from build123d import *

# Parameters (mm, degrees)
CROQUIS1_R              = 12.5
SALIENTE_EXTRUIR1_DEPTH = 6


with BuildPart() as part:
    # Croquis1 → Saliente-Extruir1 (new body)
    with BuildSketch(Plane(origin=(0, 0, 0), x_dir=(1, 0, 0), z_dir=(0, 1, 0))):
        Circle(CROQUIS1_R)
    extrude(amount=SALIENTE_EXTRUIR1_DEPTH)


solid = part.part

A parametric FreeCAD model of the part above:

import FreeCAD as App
import Part
import Sketcher

V = App.Vector
Q = App.Units.Quantity

doc = App.newDocument("Part")
params = doc.addObject("Spreadsheet::Sheet", "Params")
for row, (alias, value) in enumerate([
    ("sketch1_diameter", "25 mm"),
    ("pad1_length", "6 mm"),
], start=1):
    params.set(f"A{row}", alias)
    params.set(f"B{row}", "=" + value)
    params.setAlias(f"B{row}", alias)

body = doc.addObject("PartDesign::Body", "Body")

sketch1 = body.newObject("Sketcher::SketchObject", "Sketch")
sketch1.AttachmentSupport = (doc.getObject("XZ_Plane"), [""])
sketch1.MapMode = "FlatFace"
sketch1.addGeometry(Part.Circle(V(0, 0, 0), V(0, 0, 1), 12), False)
sketch1.addConstraint(Sketcher.Constraint("Coincident", 0, 3, -1, 1))
sketch1.addConstraint(Sketcher.Constraint("Diameter", 0, Q("25 mm")))
sketch1.setExpression("Constraints[1]", "Params.sketch1_diameter")
pad1 = body.newObject("PartDesign::Pad", "Pad")
pad1.Profile = sketch1
pad1.setExpression("Length", "Params.pad1_length")
pad1.Reversed = True

doc.recompute()
